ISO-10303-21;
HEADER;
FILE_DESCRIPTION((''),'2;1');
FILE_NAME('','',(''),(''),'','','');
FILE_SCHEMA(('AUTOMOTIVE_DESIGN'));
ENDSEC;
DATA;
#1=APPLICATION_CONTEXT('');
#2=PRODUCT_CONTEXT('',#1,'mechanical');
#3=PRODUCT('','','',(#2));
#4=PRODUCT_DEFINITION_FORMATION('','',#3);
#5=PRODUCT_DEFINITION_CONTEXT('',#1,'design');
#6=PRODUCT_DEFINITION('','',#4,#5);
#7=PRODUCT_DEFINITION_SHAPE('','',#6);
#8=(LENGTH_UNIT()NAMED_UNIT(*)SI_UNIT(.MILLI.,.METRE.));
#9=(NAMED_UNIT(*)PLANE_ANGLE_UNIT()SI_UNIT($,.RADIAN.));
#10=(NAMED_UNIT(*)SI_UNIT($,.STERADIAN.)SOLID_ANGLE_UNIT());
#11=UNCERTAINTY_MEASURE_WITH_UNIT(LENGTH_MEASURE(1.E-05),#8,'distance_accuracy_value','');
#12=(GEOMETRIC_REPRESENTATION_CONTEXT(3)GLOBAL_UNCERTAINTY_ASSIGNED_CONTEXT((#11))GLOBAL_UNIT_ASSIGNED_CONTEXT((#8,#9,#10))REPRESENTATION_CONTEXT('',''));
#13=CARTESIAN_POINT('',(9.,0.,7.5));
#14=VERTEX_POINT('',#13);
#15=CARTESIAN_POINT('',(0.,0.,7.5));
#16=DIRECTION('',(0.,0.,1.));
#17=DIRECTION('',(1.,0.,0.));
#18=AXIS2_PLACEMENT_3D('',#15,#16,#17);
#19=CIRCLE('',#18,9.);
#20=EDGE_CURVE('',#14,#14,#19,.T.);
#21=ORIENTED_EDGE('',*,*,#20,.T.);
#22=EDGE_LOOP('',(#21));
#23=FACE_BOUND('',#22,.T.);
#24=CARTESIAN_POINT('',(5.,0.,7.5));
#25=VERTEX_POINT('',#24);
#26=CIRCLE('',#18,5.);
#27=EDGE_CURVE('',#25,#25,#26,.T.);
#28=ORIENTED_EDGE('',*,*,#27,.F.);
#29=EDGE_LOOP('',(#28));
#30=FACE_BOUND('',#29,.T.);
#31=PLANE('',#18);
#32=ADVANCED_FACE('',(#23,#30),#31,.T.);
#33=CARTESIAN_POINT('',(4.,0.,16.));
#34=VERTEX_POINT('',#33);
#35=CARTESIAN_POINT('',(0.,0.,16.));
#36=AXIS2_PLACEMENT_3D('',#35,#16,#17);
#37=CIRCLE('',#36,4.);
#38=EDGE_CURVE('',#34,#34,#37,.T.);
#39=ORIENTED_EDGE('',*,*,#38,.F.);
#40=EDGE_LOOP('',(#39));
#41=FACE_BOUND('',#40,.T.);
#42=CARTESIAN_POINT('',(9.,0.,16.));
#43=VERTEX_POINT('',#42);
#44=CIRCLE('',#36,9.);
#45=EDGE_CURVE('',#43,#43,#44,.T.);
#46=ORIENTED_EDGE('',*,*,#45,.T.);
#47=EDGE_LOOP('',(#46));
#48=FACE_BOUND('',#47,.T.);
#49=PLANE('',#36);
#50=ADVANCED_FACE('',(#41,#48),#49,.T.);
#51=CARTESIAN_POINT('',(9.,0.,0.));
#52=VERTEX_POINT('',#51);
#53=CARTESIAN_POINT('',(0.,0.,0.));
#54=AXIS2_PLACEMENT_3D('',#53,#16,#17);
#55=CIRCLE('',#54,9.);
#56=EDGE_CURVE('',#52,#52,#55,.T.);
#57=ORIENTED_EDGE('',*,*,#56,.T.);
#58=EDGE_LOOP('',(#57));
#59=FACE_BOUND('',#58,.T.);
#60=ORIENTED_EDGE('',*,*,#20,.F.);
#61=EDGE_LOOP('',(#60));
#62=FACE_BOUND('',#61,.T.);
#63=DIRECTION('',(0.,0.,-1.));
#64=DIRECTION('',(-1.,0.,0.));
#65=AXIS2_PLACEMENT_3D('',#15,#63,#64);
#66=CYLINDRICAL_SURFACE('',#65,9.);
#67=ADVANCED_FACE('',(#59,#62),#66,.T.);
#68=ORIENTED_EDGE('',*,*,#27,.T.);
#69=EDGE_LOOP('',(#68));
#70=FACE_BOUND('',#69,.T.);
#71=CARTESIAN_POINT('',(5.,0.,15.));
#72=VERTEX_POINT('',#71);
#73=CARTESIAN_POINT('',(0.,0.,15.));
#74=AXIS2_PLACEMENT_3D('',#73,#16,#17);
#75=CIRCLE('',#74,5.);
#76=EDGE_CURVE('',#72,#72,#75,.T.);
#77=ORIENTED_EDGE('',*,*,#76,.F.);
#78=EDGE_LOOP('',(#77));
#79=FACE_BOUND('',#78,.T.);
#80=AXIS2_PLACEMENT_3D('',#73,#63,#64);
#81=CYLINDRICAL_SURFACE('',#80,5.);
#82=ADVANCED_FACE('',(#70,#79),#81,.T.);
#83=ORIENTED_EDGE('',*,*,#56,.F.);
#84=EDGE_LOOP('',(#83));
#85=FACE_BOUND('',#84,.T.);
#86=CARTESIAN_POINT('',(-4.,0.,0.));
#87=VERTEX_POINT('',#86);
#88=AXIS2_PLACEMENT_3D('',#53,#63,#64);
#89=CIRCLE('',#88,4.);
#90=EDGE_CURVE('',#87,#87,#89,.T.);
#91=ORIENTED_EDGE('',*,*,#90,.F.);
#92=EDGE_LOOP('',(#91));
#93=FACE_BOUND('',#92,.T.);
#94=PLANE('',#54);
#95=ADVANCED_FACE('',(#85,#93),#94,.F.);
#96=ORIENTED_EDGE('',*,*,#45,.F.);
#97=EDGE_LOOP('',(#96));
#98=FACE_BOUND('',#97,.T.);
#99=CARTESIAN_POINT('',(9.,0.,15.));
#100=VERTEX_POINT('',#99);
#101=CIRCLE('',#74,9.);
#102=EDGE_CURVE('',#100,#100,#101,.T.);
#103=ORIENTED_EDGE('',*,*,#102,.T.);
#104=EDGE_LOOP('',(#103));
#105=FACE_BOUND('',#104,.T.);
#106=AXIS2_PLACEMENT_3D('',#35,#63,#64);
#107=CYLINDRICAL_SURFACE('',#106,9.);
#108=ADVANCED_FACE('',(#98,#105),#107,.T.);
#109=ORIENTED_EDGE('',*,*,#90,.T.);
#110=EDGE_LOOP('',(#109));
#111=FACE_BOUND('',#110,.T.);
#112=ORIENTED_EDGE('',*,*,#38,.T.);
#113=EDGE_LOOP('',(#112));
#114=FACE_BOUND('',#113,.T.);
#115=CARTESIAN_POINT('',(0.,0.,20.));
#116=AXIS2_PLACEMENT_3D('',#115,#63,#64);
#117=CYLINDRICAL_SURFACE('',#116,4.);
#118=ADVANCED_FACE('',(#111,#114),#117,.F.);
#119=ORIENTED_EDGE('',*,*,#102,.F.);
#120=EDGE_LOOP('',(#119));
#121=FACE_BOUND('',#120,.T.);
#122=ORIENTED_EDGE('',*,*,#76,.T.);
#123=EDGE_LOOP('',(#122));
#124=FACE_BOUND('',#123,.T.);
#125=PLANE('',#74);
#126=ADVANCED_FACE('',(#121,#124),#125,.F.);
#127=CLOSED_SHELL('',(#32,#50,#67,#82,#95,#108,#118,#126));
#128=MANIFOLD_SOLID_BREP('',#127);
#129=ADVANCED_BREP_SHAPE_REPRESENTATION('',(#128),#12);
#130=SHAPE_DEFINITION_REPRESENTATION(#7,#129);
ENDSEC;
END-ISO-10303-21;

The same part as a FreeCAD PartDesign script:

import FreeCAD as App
import Part
import Sketcher

doc = App.newDocument("Part")
params = doc.addObject("Spreadsheet::Sheet", "Params")
for row, (alias, value) in enumerate([
    ("sketch1_diameter", "18 mm"),
    ("pad1_length", "7.5 mm"),
    ("sketch2_diameter", "10 mm"),
    ("pad2_length", "7.5 mm"),
    ("sketch3_diameter", "18 mm"),
    ("pad3_length", "1 mm"),
    ("sketch4_diameter", "8 mm"),
    ("pocket1_length", "20 mm"),
], start=1):
    params.set(f"A{row}", alias)
    params.set(f"B{row}", "=" + value)
    params.setAlias(f"B{row}", alias)

body = doc.addObject("PartDesign::Body", "Body")

sketch1 = body.newObject("Sketcher::SketchObject", "Sketch")
sketch1.AttachmentSupport = (doc.getObject("XY_Plane"), [""])
sketch1.MapMode = "FlatFace"
sketch1.addGeometry(Part.Circle(App.Vector(0, 0, 0), App.Vector(0, 0, 1), 9), False)
sketch1.addConstraint([
    Sketcher.Constraint("Coincident", 0, 3, -1, 1),
    Sketcher.Constraint("Diameter", 0, 18.0),
])
sketch1.setExpression("Constraints[1]", "Params.sketch1_diameter")
pad1 = body.newObject("PartDesign::Pad", "Pad")
pad1.Profile = sketch1
pad1.setExpression("Length", "Params.pad1_length")

sketch2 = body.newObject("Sketcher::SketchObject", "Sketch001")
sketch2.AttachmentSupport = (doc.getObject("XY_Plane"), [""])
sketch2.MapMode = "FlatFace"
sketch2.AttachmentOffset = App.Placement(App.Vector(0, 0, 7.5), App.Rotation())
sketch2.addGeometry(Part.Circle(App.Vector(0, 0, 0), App.Vector(0, 0, 1), 5), False)
sketch2.addConstraint([
    Sketcher.Constraint("Coincident", 0, 3, -1, 1),
    Sketcher.Constraint("Diameter", 0, 10.0),
])
sketch2.setExpression("Constraints[1]", "Params.sketch2_diameter")
pad2 = body.newObject("PartDesign::Pad", "Pad001")
pad2.Profile = sketch2
pad2.setExpression("Length", "Params.pad2_length")

sketch3 = body.newObject("Sketcher::SketchObject", "Sketch002")
sketch3.AttachmentSupport = (doc.getObject("XY_Plane"), [""])
sketch3.MapMode = "FlatFace"
sketch3.AttachmentOffset = App.Placement(App.Vector(0, 0, 15), App.Rotation())
sketch3.addGeometry(Part.Circle(App.Vector(0, 0, 0), App.Vector(0, 0, 1), 9), False)
sketch3.addConstraint([
    Sketcher.Constraint("Coincident", 0, 3, -1, 1),
    Sketcher.Constraint("Diameter", 0, 18.0),
])
sketch3.setExpression("Constraints[1]", "Params.sketch3_diameter")
pad3 = body.newObject("PartDesign::Pad", "Pad002")
pad3.Profile = sketch3
pad3.setExpression("Length", "Params.pad3_length")

sketch4 = body.newObject("Sketcher::SketchObject", "Sketch003")
sketch4.AttachmentSupport = (doc.getObject("XY_Plane"), [""])
sketch4.MapMode = "FlatFace"
sketch4.addGeometry(Part.Circle(App.Vector(0, 0, 0), App.Vector(0, 0, 1), 4), False)
sketch4.addConstraint([
    Sketcher.Constraint("Coincident", 0, 3, -1, 1),
    Sketcher.Constraint("Diameter", 0, 8.0),
])
sketch4.setExpression("Constraints[1]", "Params.sketch4_diameter")
pocket1 = body.newObject("PartDesign::Pocket", "Pocket")
pocket1.Profile = sketch4
pocket1.setExpression("Length", "Params.pocket1_length")
pocket1.Reversed = True

doc.recompute()
